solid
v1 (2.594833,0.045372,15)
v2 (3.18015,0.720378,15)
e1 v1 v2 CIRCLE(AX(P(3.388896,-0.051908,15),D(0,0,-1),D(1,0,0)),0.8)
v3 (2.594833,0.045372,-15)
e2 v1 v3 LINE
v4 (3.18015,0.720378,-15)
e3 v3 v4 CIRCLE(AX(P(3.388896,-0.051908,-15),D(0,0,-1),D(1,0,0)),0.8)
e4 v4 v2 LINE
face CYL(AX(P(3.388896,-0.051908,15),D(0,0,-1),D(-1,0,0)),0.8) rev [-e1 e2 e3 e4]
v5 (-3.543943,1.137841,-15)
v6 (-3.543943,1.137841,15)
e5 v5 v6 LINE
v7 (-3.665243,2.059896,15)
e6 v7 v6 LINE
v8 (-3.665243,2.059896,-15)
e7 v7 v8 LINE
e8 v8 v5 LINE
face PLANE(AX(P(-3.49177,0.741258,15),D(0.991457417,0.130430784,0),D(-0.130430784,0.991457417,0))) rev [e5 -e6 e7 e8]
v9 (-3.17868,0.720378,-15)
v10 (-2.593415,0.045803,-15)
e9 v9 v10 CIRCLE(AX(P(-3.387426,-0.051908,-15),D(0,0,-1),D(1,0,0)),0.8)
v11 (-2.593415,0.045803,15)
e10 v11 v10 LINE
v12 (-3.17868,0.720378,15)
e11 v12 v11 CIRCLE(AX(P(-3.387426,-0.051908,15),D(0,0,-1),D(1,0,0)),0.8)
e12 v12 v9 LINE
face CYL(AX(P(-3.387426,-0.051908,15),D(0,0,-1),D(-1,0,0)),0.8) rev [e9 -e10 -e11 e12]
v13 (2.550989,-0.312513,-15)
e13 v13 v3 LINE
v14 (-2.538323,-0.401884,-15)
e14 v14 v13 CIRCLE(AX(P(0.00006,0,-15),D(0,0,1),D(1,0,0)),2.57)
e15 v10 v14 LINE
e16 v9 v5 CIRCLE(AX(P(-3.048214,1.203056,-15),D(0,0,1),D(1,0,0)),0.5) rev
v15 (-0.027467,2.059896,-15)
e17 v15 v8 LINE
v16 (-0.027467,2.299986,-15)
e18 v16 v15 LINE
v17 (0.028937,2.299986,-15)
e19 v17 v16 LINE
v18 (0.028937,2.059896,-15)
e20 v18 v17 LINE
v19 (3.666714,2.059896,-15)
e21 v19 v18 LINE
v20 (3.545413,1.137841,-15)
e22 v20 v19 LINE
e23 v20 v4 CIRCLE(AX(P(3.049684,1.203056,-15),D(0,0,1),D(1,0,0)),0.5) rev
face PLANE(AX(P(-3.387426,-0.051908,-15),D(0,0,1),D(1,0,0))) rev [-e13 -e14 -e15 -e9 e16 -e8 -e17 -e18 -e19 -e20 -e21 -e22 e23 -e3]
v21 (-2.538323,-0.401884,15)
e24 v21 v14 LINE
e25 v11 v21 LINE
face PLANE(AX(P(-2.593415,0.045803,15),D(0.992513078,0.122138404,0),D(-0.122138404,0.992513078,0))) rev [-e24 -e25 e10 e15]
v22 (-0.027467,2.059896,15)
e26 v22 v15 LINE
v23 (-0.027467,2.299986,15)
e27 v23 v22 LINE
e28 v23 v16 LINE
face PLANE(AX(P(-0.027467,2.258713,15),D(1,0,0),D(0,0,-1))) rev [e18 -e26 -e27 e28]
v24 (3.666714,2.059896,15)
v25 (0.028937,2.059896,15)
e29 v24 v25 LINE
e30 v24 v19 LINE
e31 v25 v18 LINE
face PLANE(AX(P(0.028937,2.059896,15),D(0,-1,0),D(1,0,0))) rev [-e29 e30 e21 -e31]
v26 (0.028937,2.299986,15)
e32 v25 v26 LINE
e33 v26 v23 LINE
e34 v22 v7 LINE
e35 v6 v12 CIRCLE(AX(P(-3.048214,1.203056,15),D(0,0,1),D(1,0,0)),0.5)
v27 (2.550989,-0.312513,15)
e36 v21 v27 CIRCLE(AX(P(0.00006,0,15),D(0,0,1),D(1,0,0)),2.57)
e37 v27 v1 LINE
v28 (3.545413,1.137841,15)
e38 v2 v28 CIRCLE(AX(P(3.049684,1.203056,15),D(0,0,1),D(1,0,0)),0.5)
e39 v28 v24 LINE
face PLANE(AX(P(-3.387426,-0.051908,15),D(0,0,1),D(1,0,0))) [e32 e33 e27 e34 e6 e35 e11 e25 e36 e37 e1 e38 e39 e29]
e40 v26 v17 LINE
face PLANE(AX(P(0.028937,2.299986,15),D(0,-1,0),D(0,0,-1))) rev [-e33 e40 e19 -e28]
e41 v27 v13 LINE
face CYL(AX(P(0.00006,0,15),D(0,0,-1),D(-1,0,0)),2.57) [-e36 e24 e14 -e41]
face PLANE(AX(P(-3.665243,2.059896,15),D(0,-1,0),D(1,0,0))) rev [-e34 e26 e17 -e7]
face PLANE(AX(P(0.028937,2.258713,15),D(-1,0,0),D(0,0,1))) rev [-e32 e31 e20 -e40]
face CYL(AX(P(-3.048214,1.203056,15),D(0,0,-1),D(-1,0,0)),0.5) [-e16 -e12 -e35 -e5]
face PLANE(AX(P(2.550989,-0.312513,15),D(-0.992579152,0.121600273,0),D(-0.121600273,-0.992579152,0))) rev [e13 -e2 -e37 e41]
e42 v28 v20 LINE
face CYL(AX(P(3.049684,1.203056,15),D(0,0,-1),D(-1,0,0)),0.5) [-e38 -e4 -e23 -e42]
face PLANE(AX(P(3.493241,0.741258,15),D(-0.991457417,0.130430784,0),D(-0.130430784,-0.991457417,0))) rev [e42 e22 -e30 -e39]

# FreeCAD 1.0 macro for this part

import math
import FreeCAD as App
import Part
import Sketcher
from FreeCAD import Vector
Q = App.Units.Quantity


def edges_at(feature, points):
    """Names of the edges that pass closest to the given points."""
    edges = feature.Shape.Edges
    near = lambda p: min(range(len(edges)), key=lambda i: edges[i].distToShape(Part.Vertex(*p))[0])
    return sorted({f"Edge{near(p) + 1}" for p in points})

doc = App.newDocument("Part")
params = doc.addObject("Spreadsheet::Sheet", "Params")
for row, (alias, value) in enumerate([
    ("sketch1_radius", "0.8 mm"),
    ("sketch1_radius2", "2.57 mm"),
    ("sketch1_length", "1.33 mm"),
    ("pad1_length", "30 mm"),
    ("fillet_radius", "0.5 mm"),
], start=1):
    params.set(f"A{row}", alias)
    params.set(f"B{row}", "=" + value)
    params.setAlias(f"B{row}", alias)

body = doc.addObject("PartDesign::Body", "Body")

# Sketch on XY plane
sketch1 = body.newObject("Sketcher::SketchObject", "Sketch")
sketch1.AttachmentSupport = (doc.getObject("XY_Plane"), [""])
sketch1.MapMode = "FlatFace"
sketch1.addGeometry([
    Part.LineSegment(Vector(-2.59, 0.05, 0), Vector(-2.54, -0.4, 0)),  # 0
    Part.ArcOfCircle(Part.Circle(Vector(0, 0, 0), Vector(0, 0, 1), 2.57), math.radians(-171), math.radians(-7)),  # 1
    Part.LineSegment(Vector(2.55, -0.31, 0), Vector(2.59, 0.05, 0)),  # 2
    Part.ArcOfCircle(Part.Circle(Vector(3.39, -0.05, 0), Vector(0, 0, 1), 0.8), math.radians(83), math.radians(173)),  # 3
    Part.LineSegment(Vector(3.49, 0.74, 0), Vector(3.67, 2.06, 0)),  # 4
    Part.LineSegment(Vector(3.67, 2.06, 0), Vector(0.03, 2.06, 0)),  # 5
    Part.LineSegment(Vector(0.03, 2.06, 0), Vector(0.03, 2.3, 0)),  # 6
    Part.LineSegment(Vector(0.03, 2.3, 0), Vector(-0.03, 2.3, 0)),  # 7
    Part.LineSegment(Vector(-0.03, 2.3, 0), Vector(-0.03, 2.06, 0)),  # 8
    Part.LineSegment(Vector(-0.03, 2.06, 0), Vector(-3.67, 2.06, 0)),  # 9
    Part.LineSegment(Vector(-3.67, 2.06, 0), Vector(-3.49, 0.74, 0)),  # 10
    Part.ArcOfCircle(Part.Circle(Vector(-3.39, -0.05, 0), Vector(0, 0, 1), 0.8), math.radians(7), math.radians(97)),  # 11
], False)
sketch1.addConstraint([
    Sketcher.Constraint("Coincident", 0, 2, 1, 1),
    Sketcher.Constraint("Tangent", 1, 2, 2, 1),
    Sketcher.Constraint("Tangent", 2, 2, 3, 2),
    Sketcher.Constraint("Coincident", 3, 1, 4, 1),
    Sketcher.Constraint("Coincident", 4, 2, 5, 1),
    Sketcher.Constraint("Coincident", 5, 2, 6, 1),
    Sketcher.Constraint("Coincident", 6, 2, 7, 1),
    Sketcher.Constraint("Coincident", 7, 2, 8, 1),
    Sketcher.Constraint("Coincident", 8, 2, 9, 1),
    Sketcher.Constraint("Coincident", 9, 2, 10, 1),
    Sketcher.Constraint("Coincident", 10, 2, 11, 2),
    Sketcher.Constraint("Tangent", 11, 1, 0, 1),
    Sketcher.Constraint("Horizontal", 5),
    Sketcher.Constraint("Vertical", 6),
    Sketcher.Constraint("Horizontal", 7),
    Sketcher.Constraint("Vertical", 8),
    Sketcher.Constraint("Horizontal", 9),
    Sketcher.Constraint("Equal", 3, 11),
    Sketcher.Constraint("PointOnObject", 1, 3, -1),
    Sketcher.Constraint("Horizontal", 3, 3, 11, 3),
    Sketcher.Constraint("Horizontal", 5, 2, 8, 2),
    Sketcher.Constraint("Horizontal", 3, 1, 10, 2),
    Sketcher.Constraint("Equal", 5, 9),
    Sketcher.Constraint("Equal", 4, 10),
    Sketcher.Constraint("Radius", 3, Q("0.8 mm")),
    Sketcher.Constraint("Radius", 1, Q("2.57 mm")),
    Sketcher.Constraint("Distance", 4, Q("1.33 mm")),
    Sketcher.Constraint("DistanceY", 6, 1, 6, 2, Q("0.24009 mm")),
    Sketcher.Constraint("DistanceY", 1, 2, 6, 2, Q("2.612499 mm")),
    Sketcher.Constraint("DistanceX", 7, 2, 2, 2, Q("2.6223 mm")),
    Sketcher.Constraint("Distance", 2, Q("0.360561 mm")),
    Sketcher.Constraint("DistanceX", 5, 2, 5, 1, Q("3.637777 mm")),
    Sketcher.Constraint("DistanceX", 7, 2, 7, 1, Q("0.056404 mm")),
    Sketcher.Constraint("DistanceX", -1, 1, 1, 2, Q("2.550989 mm")),
    Sketcher.Constraint("DistanceX", -1, 1, 3, 1, Q("3.493241 mm")),
    Sketcher.Constraint("DistanceX", 0, 2, 3, 3, Q("5.927219 mm")),
])
sketch1.setExpression("Constraints[24]", "Params.sketch1_radius")
sketch1.setExpression("Constraints[25]", "Params.sketch1_radius2")
sketch1.setExpression("Constraints[26]", "Params.sketch1_length")
pad1 = body.newObject("PartDesign::Pad", "Pad")
pad1.Profile = sketch1
pad1.setExpression("Length", "Params.pad1_length")
pad1.Midplane = True
doc.recompute()

fillet = body.newObject("PartDesign::Fillet", "Fillet")
fillet.Base = (pad1, edges_at(pad1, [(-3.492, 0.741, 0), (3.493, 0.741, 0)]))
fillet.setExpression("Radius", "Params.fillet_radius")

doc.recompute()
